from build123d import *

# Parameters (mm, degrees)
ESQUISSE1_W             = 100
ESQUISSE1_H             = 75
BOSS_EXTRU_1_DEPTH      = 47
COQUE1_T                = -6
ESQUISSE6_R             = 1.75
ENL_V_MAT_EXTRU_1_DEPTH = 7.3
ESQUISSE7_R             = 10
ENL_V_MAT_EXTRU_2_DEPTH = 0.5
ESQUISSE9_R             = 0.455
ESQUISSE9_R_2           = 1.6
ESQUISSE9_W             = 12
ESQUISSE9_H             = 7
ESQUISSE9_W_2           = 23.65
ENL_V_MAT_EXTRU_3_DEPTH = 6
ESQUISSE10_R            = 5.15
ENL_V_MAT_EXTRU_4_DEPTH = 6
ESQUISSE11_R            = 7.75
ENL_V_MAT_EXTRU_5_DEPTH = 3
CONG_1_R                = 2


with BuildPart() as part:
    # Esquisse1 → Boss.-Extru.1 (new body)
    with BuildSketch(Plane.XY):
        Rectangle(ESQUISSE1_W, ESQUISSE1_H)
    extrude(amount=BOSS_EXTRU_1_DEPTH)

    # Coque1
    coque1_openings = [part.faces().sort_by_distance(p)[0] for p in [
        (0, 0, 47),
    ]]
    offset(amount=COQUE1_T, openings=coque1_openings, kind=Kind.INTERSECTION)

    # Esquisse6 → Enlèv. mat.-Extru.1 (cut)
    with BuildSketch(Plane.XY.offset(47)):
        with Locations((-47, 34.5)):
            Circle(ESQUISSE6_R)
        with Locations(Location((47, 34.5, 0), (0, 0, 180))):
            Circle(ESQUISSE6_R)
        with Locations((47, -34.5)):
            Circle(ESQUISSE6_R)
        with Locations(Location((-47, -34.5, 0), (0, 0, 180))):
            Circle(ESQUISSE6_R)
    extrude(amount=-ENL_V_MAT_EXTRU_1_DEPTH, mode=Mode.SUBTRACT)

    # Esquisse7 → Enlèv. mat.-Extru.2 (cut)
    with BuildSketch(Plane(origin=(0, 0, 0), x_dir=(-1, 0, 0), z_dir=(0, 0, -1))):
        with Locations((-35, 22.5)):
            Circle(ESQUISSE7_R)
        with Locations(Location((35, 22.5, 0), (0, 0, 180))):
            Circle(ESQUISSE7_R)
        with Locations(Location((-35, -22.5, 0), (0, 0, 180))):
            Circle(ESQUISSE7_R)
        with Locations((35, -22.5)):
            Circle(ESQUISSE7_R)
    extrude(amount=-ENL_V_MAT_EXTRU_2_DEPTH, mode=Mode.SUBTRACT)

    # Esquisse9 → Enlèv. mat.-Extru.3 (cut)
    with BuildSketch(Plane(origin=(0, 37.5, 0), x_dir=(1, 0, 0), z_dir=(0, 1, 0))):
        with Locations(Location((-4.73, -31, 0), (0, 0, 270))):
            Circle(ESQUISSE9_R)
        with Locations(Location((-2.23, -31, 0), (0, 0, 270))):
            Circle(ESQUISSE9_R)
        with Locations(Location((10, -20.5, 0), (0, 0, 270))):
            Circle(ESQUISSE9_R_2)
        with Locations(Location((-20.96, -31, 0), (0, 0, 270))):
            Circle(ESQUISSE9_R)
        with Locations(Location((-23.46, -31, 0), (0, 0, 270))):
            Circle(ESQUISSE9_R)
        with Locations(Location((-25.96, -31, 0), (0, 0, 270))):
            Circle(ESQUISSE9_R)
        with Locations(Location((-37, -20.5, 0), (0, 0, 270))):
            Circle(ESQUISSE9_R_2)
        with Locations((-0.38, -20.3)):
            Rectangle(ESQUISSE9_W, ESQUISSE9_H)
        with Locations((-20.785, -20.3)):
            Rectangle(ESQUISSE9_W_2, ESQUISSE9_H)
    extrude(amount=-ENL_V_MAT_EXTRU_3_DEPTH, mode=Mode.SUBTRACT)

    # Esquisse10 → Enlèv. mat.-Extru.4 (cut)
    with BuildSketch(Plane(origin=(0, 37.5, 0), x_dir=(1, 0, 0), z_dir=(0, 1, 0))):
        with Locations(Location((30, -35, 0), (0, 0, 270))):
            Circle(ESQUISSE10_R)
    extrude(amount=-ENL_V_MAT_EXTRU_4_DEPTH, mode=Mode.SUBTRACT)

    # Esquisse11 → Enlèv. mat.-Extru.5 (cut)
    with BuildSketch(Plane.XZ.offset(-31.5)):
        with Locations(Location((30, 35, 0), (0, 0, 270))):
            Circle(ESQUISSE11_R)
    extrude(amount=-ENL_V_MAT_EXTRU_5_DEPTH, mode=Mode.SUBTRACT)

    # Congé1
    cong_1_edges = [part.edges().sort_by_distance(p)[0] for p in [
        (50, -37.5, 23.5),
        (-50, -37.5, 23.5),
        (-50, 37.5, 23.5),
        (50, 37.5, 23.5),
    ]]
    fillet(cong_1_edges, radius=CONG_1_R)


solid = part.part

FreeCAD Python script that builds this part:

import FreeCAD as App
import Part
import Sketcher
Q = App.Units.Quantity


def edges_at(feature, points):
    """Names of the edges that pass closest to the given points."""
    edges = feature.Shape.Edges
    near = lambda p: min(range(len(edges)), key=lambda i: edges[i].distToShape(Part.Vertex(*p))[0])
    return sorted({f"Edge{near(p) + 1}" for p in points})


def faces_at(feature, points):
    """Names of the faces that lie closest to the given points."""
    faces = feature.Shape.Faces
    near = lambda p: min(range(len(faces)), key=lambda i: faces[i].distToShape(Part.Vertex(*p))[0])
    return sorted({f"Face{near(p) + 1}" for p in points})

doc = App.newDocument("Part")
body = doc.addObject("PartDesign::Body", "Body")

sketch1 = doc.addObject("Sketcher::SketchObject", "Sketch")
body.addObject(sketch1)
sketch1.AttachmentSupport = (doc.XY_Plane, [""])
sketch1.MapMode = "FlatFace"
sketch1.addGeometry([
    Part.LineSegment(App.Vector(-50, 37.5, 0), App.Vector(-50, -37.5, 0)),
    Part.LineSegment(App.Vector(-50, -37.5, 0), App.Vector(50, -37.5, 0)),
    Part.LineSegment(App.Vector(50, -37.5, 0), App.Vector(50, 37.5, 0)),
    Part.LineSegment(App.Vector(50, 37.5, 0), App.Vector(-50, 37.5, 0)),
], False)
sketch1.addConstraint([
    Sketcher.Constraint("Coincident", 0, 2, 1, 1),
    Sketcher.Constraint("Coincident", 1, 2, 2, 1),
    Sketcher.Constraint("Coincident", 2, 2, 3, 1),
    Sketcher.Constraint("Coincident", 3, 2, 0, 1),
    Sketcher.Constraint("Vertical", 0),
    Sketcher.Constraint("Horizontal", 1),
    Sketcher.Constraint("Vertical", 2),
    Sketcher.Constraint("Horizontal", 3),
    Sketcher.Constraint("Symmetric", 0, 2, 2, 2, -1, 1),
    Sketcher.Constraint("DistanceX", 1, 1, 1, 2, Q("100 mm")),
    Sketcher.Constraint("DistanceY", 0, 2, 0, 1, Q("75 mm")),
])
pad1 = doc.addObject("PartDesign::Pad", "Pad")
body.addObject(pad1)
pad1.Profile = sketch1
pad1.Length = 47
doc.recompute()

thickness = doc.addObject("PartDesign::Thickness", "Thickness")
body.addObject(thickness)
thickness.Base = (pad1, faces_at(pad1, [(0, 0, 47)]))
thickness.Value = 6
thickness.Reversed = True
thickness.Join = "Intersection"

sketch2 = doc.addObject("Sketcher::SketchObject", "Sketch001")
body.addObject(sketch2)
sketch2.AttachmentSupport = (doc.XY_Plane, [""])
sketch2.MapMode = "FlatFace"
sketch2.AttachmentOffset = App.Placement(App.Vector(0, 0, 47), App.Rotation())
sketch2.addGeometry([
    Part.Circle(App.Vector(-47, 34.5, 0), App.Vector(0, 0, 1), 1.75),
    Part.Circle(App.Vector(47, 34.5, 0), App.Vector(0, 0, 1), 1.75),
    Part.Circle(App.Vector(47, -34.5, 0), App.Vector(0, 0, 1), 1.75),
    Part.Circle(App.Vector(-47, -34.5, 0), App.Vector(0, 0, 1), 1.75),
], False)
sketch2.addConstraint([
    Sketcher.Constraint("Equal", 0, 1),
    Sketcher.Constraint("Equal", 1, 2),
    Sketcher.Constraint("Equal", 2, 3),
    Sketcher.Constraint("Symmetric", 0, 3, 2, 3, -1, 1),
    Sketcher.Constraint("Symmetric", 1, 3, 3, 3, -1, 1),
    Sketcher.Constraint("Symmetric", 0, 3, 1, 3, -2),
    Sketcher.Constraint("Diameter", 0, Q("3.5 mm")),
    Sketcher.Constraint("DistanceX", 0, 3, -1, 1, Q("47 mm")),
    Sketcher.Constraint("DistanceY", 2, 3, 1, 3, Q("69 mm")),
])
pocket1 = doc.addObject("PartDesign::Pocket", "Pocket")
body.addObject(pocket1)
pocket1.Profile = sketch2
pocket1.Length = 7.3

sketch3 = doc.addObject("Sketcher::SketchObject", "Sketch002")
body.addObject(sketch3)
sketch3.AttachmentSupport = (doc.XY_Plane, [""])
sketch3.MapMode = "FlatFace"
sketch3.addGeometry([
    Part.Circle(App.Vector(35, 22.5, 0), App.Vector(0, 0, 1), 10),
    Part.Circle(App.Vector(-35, 22.5, 0), App.Vector(0, 0, 1), 10),
    Part.Circle(App.Vector(35, -22.5, 0), App.Vector(0, 0, 1), 10),
    Part.Circle(App.Vector(-35, -22.5, 0), App.Vector(0, 0, 1), 10),
], False)
sketch3.addConstraint([
    Sketcher.Constraint("Equal", 0, 1),
    Sketcher.Constraint("Equal", 1, 2),
    Sketcher.Constraint("Equal", 2, 3),
    Sketcher.Constraint("Symmetric", 1, 3, 2, 3, -1, 1),
    Sketcher.Constraint("Symmetric", 0, 3, 3, 3, -1, 1),
    Sketcher.Constraint("Symmetric", 0, 3, 1, 3, -2),
    Sketcher.Constraint("Diameter", 0, Q("20 mm")),
    Sketcher.Constraint("DistanceX", -1, 1, 0, 3, Q("35 mm")),
    Sketcher.Constraint("DistanceY", 2, 3, 0, 3, Q("45 mm")),
])
pocket2 = doc.addObject("PartDesign::Pocket", "Pocket001")
body.addObject(pocket2)
pocket2.Profile = sketch3
pocket2.Length = 0.5
pocket2.Reversed = True

sketch4 = doc.addObject("Sketcher::SketchObject", "Sketch003")
body.addObject(sketch4)
sketch4.AttachmentSupport = (doc.XZ_Plane, [""])
sketch4.MapMode = "FlatFace"
sketch4.AttachmentOffset = App.Placement(App.Vector(0, 0, -37.5), App.Rotation())
sketch4.addGeometry([
    Part.Circle(App.Vector(-4.73, 31, 0), App.Vector(0, 0, 1), 0.455),
    Part.Circle(App.Vector(-2.23, 31, 0), App.Vector(0, 0, 1), 0.455),
    Part.Circle(App.Vector(10, 20.5, 0), App.Vector(0, 0, 1), 1.6),
    Part.Circle(App.Vector(-20.96, 31, 0), App.Vector(0, 0, 1), 0.455),
    Part.Circle(App.Vector(-23.46, 31, 0), App.Vector(0, 0, 1), 0.455),
    Part.Circle(App.Vector(-25.96, 31, 0), App.Vector(0, 0, 1), 0.455),
    Part.Circle(App.Vector(-37, 20.5, 0), App.Vector(0, 0, 1), 1.6),
    Part.LineSegment(App.Vector(-6.38, 16.8, 0), App.Vector(-6.38, 23.8, 0)),
    Part.LineSegment(App.Vector(-6.38, 23.8, 0), App.Vector(5.62, 23.8, 0)),
    Part.LineSegment(App.Vector(5.62, 23.8, 0), App.Vector(5.62, 16.8, 0)),
    Part.LineSegment(App.Vector(5.62, 16.8, 0), App.Vector(-6.38, 16.8, 0)),
    Part.LineSegment(App.Vector(-32.61, 16.8, 0), App.Vector(-32.61, 23.8, 0)),
    Part.LineSegment(App.Vector(-32.61, 23.8, 0), App.Vector(-8.96, 23.8, 0)),
    Part.LineSegment(App.Vector(-8.96, 23.8, 0), App.Vector(-8.96, 16.8, 0)),
    Part.LineSegment(App.Vector(-8.96, 16.8, 0), App.Vector(-32.61, 16.8, 0)),
], False)
sketch4.addConstraint([
    Sketcher.Constraint("Coincident", 7, 2, 8, 1),
    Sketcher.Constraint("Coincident", 8, 2, 9, 1),
    Sketcher.Constraint("Coincident", 9, 2, 10, 1),
    Sketcher.Constraint("Coincident", 10, 2, 7, 1),
    Sketcher.Constraint("Coincident", 11, 2, 12, 1),
    Sketcher.Constraint("Coincident", 12, 2, 13, 1),
    Sketcher.Constraint("Coincident", 13, 2, 14, 1),
    Sketcher.Constraint("Coincident", 14, 2, 11, 1),
    Sketcher.Constraint("Vertical", 7),
    Sketcher.Constraint("Horizontal", 8),
    Sketcher.Constraint("Vertical", 9),
    Sketcher.Constraint("Horizontal", 10),
    Sketcher.Constraint("Vertical", 11),
    Sketcher.Constraint("Horizontal", 12),
    Sketcher.Constraint("Vertical", 13),
    Sketcher.Constraint("Horizontal", 14),
    Sketcher.Constraint("Equal", 0, 1),
    Sketcher.Constraint("Equal", 1, 3),
    Sketcher.Constraint("Equal", 3, 4),
    Sketcher.Constraint("Equal", 4, 5),
    Sketcher.Constraint("Equal", 2, 6),
    Sketcher.Constraint("Horizontal", 0, 3, 1, 3),
    Sketcher.Constraint("Horizontal", 1, 3, 3, 3),
    Sketcher.Constraint("Horizontal", 3, 3, 4, 3),
    Sketcher.Constraint("Horizontal", 4, 3, 5, 3),
    Sketcher.Constraint("Horizontal", 2, 3, 6, 3),
    Sketcher.Constraint("Horizontal", 8, 2, 11, 2),
    Sketcher.Constraint("Horizontal", 10, 2, 13, 2),
    Sketcher.Constraint("Diameter", 2, Q("3.2 mm")),
    Sketcher.Constraint("Diameter", 0, Q("0.91 mm")),
    Sketcher.Constraint("DistanceX", 8, 1, 8, 2, Q("12 mm")),
    Sketcher.Constraint("DistanceY", 7, 1, 7, 2, Q("7 mm")),
    Sketcher.Constraint("DistanceY", -1, 1, 0, 3, Q("31 mm")),
    Sketcher.Constraint("DistanceX", -1, 1, 2, 3, Q("10 mm")),
    Sketcher.Constraint("DistanceX", 6, 3, -1, 1, Q("37 mm")),
    Sketcher.Constraint("DistanceX", 5, 3, 3, 3, Q("5 mm")),
    Sketcher.Constraint("DistanceX", 3, 3, 12, 2, Q("12 mm")),
    Sketcher.Constraint("DistanceX", 12, 1, 12, 2, Q("23.65 mm")),
    Sketcher.Constraint("DistanceY", -1, 1, 2, 3, Q("20.5 mm")),
    Sketcher.Constraint("DistanceY", -1, 1, 7, 2, Q("23.8 mm")),
    Sketcher.Constraint("DistanceX", 0, 3, 1, 3, Q("2.5 mm")),
    Sketcher.Constraint("DistanceX", 4, 3, 3, 3, Q("2.5 mm")),
    Sketcher.Constraint("DistanceX", 0, 3, -1, 1, Q("4.73 mm")),
    Sketcher.Constraint("DistanceX", 3, 3, -1, 1, Q("20.96 mm")),
    Sketcher.Constraint("DistanceX", 7, 2, -1, 1, Q("6.38 mm")),
])
pocket3 = doc.addObject("PartDesign::Pocket", "Pocket002")
body.addObject(pocket3)
pocket3.Profile = sketch4
pocket3.Length = 6
pocket3.Reversed = True

sketch5 = doc.addObject("Sketcher::SketchObject", "Sketch004")
body.addObject(sketch5)
sketch5.AttachmentSupport = (doc.XZ_Plane, [""])
sketch5.MapMode = "FlatFace"
sketch5.AttachmentOffset = App.Placement(App.Vector(0, 0, -37.5), App.Rotation())
sketch5.addGeometry(Part.Circle(App.Vector(30, 35, 0), App.Vector(0, 0, 1), 5.15), False)
sketch5.addConstraint([
    Sketcher.Constraint("Diameter", 0, Q("10.3 mm")),
    Sketcher.Constraint("DistanceX", -1, 1, 0, 3, Q("30 mm")),
    Sketcher.Constraint("DistanceY", -1, 1, 0, 3, Q("35 mm")),
])
pocket4 = doc.addObject("PartDesign::Pocket", "Pocket003")
body.addObject(pocket4)
pocket4.Profile = sketch5
pocket4.Length = 6
pocket4.Reversed = True

sketch6 = doc.addObject("Sketcher::SketchObject", "Sketch005")
body.addObject(sketch6)
sketch6.AttachmentSupport = (doc.XZ_Plane, [""])
sketch6.MapMode = "FlatFace"
sketch6.AttachmentOffset = App.Placement(App.Vector(0, 0, -31.5), App.Rotation())
sketch6.addGeometry(Part.Circle(App.Vector(30, 35, 0), App.Vector(0, 0, 1), 7.75), False)
sketch6.addConstraint([
    Sketcher.Constraint("Diameter", 0, Q("15.5 mm")),
    Sketcher.Constraint("DistanceX", -1, 1, 0, 3, Q("30 mm")),
    Sketcher.Constraint("DistanceY", -1, 1, 0, 3, Q("35 mm")),
])
pocket5 = doc.addObject("PartDesign::Pocket", "Pocket004")
body.addObject(pocket5)
pocket5.Profile = sketch6
pocket5.Length = 3
doc.recompute()

fillet = doc.addObject("PartDesign::Fillet", "Fillet")
body.addObject(fillet)
fillet.Base = (pocket5, edges_at(pocket5, [
    (50, -37.5, 23.5),
    (-50, -37.5, 23.5),
    (-50, 37.5, 23.5),
    (50, 37.5, 23.5),
]))
fillet.Radius = 2

doc.recompute()
